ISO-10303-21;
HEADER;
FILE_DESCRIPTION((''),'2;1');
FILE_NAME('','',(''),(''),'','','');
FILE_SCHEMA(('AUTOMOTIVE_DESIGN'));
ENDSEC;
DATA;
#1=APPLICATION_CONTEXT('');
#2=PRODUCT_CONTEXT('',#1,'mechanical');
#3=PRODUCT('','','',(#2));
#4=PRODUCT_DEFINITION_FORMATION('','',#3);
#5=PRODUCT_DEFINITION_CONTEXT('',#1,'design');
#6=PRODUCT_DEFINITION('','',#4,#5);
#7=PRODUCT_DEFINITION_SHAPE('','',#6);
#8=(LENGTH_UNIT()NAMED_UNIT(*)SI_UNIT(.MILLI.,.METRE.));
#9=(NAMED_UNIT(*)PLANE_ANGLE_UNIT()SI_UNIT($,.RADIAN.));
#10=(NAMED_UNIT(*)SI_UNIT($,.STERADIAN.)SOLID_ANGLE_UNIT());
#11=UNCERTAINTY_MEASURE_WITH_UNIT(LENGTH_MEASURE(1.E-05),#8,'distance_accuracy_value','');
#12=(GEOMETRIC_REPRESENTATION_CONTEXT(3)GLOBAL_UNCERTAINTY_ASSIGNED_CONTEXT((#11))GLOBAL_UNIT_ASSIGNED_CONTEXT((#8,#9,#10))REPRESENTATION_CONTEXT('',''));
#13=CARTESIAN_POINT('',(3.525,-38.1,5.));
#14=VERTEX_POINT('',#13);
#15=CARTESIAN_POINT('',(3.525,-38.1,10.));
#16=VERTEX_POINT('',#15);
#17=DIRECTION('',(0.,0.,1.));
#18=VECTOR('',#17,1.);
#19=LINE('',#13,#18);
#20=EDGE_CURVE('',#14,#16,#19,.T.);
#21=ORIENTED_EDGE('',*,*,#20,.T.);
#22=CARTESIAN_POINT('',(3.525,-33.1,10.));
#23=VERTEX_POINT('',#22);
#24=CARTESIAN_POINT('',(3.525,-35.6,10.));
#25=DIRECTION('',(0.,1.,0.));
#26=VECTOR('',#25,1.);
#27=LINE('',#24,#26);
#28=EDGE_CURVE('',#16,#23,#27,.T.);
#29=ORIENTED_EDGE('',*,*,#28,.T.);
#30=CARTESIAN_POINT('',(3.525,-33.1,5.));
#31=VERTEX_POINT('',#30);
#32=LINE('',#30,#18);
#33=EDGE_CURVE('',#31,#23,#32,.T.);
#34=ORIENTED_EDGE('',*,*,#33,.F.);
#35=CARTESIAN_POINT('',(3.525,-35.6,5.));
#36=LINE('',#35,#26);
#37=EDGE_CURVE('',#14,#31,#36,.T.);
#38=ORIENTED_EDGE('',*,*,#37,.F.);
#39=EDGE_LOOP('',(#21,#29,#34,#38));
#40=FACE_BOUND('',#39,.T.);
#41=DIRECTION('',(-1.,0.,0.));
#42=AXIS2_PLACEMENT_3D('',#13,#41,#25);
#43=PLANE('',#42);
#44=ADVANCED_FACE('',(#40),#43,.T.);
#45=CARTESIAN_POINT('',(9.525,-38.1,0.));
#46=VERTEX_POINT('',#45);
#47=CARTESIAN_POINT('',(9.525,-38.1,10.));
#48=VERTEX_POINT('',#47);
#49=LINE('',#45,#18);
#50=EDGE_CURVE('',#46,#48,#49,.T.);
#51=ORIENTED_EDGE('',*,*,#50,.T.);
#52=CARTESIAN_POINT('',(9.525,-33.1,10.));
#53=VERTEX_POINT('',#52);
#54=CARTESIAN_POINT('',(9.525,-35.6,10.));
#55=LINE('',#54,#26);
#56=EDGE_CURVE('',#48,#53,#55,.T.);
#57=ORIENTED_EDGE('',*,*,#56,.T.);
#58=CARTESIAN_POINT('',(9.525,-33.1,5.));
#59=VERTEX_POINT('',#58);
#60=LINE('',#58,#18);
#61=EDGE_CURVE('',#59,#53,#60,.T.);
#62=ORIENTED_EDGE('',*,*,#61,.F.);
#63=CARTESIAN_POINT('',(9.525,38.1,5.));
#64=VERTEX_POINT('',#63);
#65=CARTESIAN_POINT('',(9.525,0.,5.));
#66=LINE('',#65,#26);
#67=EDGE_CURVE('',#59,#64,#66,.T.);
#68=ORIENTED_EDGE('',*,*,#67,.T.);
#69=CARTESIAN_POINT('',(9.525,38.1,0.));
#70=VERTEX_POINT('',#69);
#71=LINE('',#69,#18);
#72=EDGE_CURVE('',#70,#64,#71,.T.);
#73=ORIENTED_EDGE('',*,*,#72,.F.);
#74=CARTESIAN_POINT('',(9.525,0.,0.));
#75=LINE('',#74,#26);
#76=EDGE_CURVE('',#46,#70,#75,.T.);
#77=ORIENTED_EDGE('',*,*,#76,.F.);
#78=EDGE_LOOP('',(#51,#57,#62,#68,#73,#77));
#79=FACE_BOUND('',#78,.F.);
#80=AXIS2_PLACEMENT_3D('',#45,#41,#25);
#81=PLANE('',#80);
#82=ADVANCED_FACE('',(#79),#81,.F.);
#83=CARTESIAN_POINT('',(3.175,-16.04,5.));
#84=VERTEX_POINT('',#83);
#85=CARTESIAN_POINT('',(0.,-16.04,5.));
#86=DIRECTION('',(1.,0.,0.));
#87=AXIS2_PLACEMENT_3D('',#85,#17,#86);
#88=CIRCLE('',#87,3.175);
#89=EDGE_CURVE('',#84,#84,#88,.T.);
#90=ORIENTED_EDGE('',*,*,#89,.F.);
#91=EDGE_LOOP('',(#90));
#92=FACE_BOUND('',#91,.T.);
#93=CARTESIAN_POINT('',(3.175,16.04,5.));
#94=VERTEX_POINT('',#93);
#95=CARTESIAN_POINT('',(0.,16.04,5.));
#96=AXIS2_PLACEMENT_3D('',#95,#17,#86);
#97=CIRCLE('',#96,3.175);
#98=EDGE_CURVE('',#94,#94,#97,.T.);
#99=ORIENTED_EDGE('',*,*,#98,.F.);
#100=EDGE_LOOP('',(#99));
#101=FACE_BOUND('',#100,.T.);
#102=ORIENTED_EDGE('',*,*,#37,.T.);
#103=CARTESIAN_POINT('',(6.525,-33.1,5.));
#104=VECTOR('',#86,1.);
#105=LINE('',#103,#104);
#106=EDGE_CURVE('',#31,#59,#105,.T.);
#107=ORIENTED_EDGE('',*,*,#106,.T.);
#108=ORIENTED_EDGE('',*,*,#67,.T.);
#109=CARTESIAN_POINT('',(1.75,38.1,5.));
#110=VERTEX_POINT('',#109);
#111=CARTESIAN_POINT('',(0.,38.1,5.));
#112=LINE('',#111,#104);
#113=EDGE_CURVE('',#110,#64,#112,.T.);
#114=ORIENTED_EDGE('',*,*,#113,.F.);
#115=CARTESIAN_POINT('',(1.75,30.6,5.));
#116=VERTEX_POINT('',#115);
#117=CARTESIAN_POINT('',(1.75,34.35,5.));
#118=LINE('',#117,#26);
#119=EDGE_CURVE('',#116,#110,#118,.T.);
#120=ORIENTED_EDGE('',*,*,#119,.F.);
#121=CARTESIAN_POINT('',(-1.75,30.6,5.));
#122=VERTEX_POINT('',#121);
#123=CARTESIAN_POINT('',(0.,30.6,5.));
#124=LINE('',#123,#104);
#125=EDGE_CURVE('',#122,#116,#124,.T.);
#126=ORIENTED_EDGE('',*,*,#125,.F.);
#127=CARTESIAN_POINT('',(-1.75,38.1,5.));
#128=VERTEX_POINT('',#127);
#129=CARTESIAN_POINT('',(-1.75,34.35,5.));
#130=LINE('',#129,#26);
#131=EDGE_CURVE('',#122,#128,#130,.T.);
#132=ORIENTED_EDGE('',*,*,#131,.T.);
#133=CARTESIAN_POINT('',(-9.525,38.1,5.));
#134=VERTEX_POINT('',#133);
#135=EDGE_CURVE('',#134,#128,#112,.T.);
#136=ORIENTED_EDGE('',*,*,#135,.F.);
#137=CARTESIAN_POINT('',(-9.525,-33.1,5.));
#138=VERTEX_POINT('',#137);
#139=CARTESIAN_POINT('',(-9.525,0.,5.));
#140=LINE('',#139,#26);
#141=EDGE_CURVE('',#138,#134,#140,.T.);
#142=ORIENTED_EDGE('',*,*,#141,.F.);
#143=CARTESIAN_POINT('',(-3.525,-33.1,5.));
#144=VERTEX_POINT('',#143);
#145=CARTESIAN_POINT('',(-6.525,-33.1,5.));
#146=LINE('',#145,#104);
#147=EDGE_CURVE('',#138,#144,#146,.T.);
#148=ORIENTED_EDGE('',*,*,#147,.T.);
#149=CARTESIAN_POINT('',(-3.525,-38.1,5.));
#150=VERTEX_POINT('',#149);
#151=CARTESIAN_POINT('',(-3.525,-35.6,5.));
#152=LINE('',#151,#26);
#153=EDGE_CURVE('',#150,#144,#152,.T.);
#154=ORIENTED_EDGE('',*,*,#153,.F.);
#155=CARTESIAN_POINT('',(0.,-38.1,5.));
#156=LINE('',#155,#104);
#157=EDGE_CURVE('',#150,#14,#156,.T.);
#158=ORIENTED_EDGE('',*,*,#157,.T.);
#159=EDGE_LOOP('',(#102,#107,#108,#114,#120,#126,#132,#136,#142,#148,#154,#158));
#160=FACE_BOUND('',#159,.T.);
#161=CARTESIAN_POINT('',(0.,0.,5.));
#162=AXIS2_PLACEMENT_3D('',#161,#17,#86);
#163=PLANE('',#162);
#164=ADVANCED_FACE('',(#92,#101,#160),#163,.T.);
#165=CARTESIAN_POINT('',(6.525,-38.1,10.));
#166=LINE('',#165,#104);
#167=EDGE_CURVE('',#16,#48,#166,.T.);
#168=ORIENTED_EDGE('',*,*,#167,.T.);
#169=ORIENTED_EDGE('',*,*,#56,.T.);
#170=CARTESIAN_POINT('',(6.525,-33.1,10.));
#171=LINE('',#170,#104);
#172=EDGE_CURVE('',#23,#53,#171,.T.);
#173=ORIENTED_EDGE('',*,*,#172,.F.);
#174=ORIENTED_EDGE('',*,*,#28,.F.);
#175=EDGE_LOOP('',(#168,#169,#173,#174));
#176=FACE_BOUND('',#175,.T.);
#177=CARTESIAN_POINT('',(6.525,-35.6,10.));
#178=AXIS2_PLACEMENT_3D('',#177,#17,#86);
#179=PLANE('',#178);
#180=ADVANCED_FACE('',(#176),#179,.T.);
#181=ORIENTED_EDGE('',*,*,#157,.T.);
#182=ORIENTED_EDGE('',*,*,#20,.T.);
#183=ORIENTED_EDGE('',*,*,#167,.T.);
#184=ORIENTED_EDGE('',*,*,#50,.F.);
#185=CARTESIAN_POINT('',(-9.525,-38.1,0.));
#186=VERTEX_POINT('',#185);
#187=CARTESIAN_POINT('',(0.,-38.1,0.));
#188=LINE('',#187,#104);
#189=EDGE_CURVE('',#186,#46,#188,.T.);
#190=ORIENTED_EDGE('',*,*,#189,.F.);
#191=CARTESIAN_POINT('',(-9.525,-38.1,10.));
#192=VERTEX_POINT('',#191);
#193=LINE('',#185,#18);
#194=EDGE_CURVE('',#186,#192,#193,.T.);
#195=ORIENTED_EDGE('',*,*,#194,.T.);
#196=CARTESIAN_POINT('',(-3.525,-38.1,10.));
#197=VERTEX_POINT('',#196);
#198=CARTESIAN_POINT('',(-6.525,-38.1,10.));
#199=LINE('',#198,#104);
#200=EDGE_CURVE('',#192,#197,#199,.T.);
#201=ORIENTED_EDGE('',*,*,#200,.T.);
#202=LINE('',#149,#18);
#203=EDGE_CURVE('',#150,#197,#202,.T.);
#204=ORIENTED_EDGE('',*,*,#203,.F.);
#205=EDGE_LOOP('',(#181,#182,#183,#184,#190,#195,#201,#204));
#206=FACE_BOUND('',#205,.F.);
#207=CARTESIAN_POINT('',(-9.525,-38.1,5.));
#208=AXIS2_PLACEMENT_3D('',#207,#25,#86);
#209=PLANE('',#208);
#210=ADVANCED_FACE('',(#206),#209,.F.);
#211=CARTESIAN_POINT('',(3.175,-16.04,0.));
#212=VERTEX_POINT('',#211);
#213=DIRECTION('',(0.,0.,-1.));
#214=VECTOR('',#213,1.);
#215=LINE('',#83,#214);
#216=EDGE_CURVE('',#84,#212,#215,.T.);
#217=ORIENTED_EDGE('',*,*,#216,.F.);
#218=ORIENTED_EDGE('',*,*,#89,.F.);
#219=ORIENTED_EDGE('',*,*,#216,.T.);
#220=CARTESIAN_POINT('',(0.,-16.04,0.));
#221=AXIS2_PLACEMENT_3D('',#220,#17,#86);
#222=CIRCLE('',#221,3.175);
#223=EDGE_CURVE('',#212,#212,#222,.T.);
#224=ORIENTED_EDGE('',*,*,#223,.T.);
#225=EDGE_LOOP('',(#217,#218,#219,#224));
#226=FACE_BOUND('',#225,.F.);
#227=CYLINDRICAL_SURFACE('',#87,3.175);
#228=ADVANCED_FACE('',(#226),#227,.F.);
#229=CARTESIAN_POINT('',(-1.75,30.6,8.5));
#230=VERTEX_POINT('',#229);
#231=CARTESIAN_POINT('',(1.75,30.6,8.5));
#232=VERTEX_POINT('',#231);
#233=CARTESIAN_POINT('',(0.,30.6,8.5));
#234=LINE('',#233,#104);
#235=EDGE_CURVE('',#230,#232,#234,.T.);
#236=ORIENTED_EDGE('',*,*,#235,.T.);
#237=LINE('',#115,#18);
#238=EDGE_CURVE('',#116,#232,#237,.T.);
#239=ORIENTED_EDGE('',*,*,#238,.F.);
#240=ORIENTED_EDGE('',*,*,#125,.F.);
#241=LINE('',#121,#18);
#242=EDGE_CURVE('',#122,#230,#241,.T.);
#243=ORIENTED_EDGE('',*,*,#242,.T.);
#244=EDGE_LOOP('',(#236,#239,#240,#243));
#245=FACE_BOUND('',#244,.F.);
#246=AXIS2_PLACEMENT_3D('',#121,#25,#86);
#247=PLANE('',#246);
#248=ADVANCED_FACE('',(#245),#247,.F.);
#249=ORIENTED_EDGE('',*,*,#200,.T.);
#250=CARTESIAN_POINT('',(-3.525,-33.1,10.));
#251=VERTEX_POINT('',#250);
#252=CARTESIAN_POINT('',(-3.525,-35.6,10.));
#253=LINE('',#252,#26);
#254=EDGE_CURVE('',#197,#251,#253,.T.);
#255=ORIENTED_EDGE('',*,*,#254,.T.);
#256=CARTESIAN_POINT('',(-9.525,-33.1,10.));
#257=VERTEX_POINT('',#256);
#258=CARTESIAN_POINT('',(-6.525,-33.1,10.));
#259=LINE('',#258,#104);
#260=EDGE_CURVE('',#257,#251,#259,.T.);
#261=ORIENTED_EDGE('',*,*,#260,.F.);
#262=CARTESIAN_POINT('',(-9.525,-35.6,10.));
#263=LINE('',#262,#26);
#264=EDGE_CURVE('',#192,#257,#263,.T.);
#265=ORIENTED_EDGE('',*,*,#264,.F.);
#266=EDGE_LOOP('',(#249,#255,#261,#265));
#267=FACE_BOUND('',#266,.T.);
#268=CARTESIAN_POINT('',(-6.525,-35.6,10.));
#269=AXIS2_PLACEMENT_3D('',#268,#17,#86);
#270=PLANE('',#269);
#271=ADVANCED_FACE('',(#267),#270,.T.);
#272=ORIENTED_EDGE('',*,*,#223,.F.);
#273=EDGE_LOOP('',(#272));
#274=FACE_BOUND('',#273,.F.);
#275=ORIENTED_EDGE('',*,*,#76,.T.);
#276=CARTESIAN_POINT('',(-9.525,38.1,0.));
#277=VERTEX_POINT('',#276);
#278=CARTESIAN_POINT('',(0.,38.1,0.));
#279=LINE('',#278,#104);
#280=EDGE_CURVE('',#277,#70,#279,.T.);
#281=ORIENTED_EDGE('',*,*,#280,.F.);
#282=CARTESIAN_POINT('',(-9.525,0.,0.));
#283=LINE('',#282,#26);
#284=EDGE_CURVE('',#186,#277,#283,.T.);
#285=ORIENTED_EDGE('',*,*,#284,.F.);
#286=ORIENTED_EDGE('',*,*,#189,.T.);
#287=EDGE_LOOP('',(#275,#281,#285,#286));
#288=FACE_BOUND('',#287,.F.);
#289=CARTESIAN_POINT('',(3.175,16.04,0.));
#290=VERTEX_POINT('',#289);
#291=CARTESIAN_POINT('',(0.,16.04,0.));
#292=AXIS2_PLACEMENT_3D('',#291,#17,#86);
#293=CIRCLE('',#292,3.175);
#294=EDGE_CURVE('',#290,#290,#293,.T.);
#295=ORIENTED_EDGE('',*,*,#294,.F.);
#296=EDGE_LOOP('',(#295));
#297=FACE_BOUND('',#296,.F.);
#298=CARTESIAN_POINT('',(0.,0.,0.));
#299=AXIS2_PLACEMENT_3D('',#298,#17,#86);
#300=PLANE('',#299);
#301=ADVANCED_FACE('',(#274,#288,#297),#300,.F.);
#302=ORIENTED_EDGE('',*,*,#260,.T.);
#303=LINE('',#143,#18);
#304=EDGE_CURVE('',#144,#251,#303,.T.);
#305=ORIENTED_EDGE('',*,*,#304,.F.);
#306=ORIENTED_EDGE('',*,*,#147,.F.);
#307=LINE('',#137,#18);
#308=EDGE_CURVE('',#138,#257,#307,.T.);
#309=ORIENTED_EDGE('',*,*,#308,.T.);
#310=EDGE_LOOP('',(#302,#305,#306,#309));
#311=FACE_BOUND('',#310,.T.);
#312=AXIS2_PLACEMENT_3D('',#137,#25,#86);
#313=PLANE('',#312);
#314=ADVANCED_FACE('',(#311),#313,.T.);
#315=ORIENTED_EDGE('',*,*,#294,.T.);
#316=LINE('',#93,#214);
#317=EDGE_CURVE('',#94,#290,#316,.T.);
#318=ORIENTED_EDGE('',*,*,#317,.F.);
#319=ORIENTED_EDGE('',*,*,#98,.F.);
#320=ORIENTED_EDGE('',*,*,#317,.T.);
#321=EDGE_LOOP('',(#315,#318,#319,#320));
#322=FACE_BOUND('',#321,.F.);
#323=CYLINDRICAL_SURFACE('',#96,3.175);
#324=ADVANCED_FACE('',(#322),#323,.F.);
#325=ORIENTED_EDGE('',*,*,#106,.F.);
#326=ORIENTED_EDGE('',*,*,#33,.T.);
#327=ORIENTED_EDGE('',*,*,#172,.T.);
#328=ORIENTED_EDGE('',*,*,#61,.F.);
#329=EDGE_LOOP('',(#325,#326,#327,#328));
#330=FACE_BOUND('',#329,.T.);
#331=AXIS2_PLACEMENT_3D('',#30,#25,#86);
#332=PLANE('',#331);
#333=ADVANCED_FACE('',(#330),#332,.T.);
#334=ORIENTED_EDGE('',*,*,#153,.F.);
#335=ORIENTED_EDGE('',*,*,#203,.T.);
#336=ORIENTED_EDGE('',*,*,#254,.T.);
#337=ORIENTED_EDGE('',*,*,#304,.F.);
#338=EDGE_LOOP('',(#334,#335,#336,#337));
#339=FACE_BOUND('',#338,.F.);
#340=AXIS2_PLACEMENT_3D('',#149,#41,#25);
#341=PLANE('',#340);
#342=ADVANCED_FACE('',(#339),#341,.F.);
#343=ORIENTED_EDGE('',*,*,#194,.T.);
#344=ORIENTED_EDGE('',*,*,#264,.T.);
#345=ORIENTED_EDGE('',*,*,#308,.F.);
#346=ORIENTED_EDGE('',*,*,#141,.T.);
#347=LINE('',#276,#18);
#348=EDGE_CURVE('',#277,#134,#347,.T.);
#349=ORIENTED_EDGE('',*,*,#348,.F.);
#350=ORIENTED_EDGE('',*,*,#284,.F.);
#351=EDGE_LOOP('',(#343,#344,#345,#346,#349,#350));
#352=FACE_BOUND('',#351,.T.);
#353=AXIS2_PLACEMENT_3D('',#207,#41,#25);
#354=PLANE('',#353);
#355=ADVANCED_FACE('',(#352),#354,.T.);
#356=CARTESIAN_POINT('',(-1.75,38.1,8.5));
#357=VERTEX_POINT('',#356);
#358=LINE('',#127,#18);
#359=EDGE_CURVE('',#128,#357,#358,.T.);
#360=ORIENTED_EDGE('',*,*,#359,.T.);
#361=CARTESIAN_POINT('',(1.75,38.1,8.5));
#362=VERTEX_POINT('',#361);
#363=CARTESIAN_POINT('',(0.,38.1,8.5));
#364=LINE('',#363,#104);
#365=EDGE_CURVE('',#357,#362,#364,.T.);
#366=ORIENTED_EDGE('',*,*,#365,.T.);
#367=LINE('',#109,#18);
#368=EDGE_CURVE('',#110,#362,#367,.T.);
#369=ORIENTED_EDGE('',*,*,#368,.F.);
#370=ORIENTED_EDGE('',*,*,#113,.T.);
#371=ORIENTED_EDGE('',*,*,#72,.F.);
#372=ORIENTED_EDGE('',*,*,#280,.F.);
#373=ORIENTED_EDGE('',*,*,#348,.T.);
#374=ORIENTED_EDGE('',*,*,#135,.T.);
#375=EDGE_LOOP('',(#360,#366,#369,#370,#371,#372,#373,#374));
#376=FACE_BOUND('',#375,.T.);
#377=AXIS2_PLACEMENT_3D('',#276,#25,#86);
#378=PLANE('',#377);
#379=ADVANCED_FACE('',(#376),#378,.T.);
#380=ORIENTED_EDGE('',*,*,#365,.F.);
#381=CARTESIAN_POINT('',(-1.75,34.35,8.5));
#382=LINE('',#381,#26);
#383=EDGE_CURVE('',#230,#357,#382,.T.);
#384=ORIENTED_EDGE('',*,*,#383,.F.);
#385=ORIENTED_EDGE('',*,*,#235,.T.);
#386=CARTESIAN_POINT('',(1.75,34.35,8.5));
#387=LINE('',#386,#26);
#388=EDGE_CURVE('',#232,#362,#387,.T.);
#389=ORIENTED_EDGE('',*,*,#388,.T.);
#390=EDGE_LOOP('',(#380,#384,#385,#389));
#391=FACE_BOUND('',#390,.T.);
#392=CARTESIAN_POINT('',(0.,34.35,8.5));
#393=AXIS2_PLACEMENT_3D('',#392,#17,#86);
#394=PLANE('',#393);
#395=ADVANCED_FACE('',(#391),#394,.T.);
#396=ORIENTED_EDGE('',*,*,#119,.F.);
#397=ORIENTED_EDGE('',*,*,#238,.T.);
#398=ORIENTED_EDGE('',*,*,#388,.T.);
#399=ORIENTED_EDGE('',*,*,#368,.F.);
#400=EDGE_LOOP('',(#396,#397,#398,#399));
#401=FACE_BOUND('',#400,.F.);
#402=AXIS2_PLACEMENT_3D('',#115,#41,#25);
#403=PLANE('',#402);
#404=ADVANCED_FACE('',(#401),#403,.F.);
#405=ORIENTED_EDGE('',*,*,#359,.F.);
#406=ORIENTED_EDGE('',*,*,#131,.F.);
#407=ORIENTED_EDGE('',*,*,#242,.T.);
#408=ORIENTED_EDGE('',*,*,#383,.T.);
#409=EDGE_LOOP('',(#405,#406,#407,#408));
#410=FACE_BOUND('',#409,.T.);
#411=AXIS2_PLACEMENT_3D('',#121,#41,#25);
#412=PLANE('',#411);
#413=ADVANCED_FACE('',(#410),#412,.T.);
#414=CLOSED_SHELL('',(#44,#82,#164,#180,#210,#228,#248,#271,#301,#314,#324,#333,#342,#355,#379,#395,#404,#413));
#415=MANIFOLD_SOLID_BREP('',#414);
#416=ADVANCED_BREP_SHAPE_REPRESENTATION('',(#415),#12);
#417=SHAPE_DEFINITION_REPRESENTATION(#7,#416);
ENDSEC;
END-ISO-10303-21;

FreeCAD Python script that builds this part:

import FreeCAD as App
import Part
import Sketcher

V = App.Vector
Q = App.Units.Quantity


def add_polygon(sketch, points):
    """Adds a closed chain of lines whose ends are joined by coincident constraints."""
    first, n = sketch.GeometryCount, len(points)
    for a, b in zip(points, points[1:] + points[:1]):
        sketch.addGeometry(Part.LineSegment(App.Vector(*a, 0), App.Vector(*b, 0)), False)
    for i in range(n):
        sketch.addConstraint(Sketcher.Constraint("Coincident", first + i, 2, first + (i + 1) % n, 1))

doc = App.newDocument("Part")
body = doc.addObject("PartDesign::Body", "Body")

# Sketch on XY plane
sketch1 = body.newObject("Sketcher::SketchObject", "Sketch")
sketch1.AttachmentSupport = (doc.getObject("XY_Plane"), [""])
sketch1.MapMode = "FlatFace"
add_polygon(sketch1, [(-9.525, 38.1), (-9.525, -38.1), (9.525, -38.1), (9.525, 38.1)])  # lines 0-3
sketch1.addConstraint(Sketcher.Constraint("Vertical", 0))
sketch1.addConstraint(Sketcher.Constraint("Horizontal", 1))
sketch1.addConstraint(Sketcher.Constraint("Vertical", 2))
sketch1.addConstraint(Sketcher.Constraint("Horizontal", 3))
sketch1.addConstraint(Sketcher.Constraint("Symmetric", 0, 2, 2, 2, -1, 1))
sketch1.addConstraint(Sketcher.Constraint("DistanceY", 0, 2, 0, 1, Q("76.2 mm")))
sketch1.addConstraint(Sketcher.Constraint("DistanceX", 1, 1, 1, 2, Q("19.05 mm")))
pad1 = body.newObject("PartDesign::Pad", "Pad")
pad1.Profile = sketch1
pad1.Length = 5

# Sketch on XY plane
sketch2 = body.newObject("Sketcher::SketchObject", "Sketch001")
sketch2.AttachmentSupport = (doc.getObject("XY_Plane"), [""])
sketch2.MapMode = "FlatFace"
sketch2.AttachmentOffset = App.Placement(V(0, 0, 5), App.Rotation())
add_polygon(sketch2, [(-1.75, 38.1), (-1.75, 30.6), (1.75, 30.6), (1.75, 38.1)])  # lines 0-3
add_polygon(sketch2, [(-9.525, -33.1), (-9.525, -38.1), (-3.525, -38.1), (-3.525, -33.1)])  # lines 4-7
add_polygon(sketch2, [(3.525, -33.1), (3.525, -38.1), (9.525, -38.1), (9.525, -33.1)])  # lines 8-11
sketch2.addConstraint(Sketcher.Constraint("Vertical", 0))
sketch2.addConstraint(Sketcher.Constraint("Horizontal", 1))
sketch2.addConstraint(Sketcher.Constraint("Vertical", 2))
sketch2.addConstraint(Sketcher.Constraint("Horizontal", 3))
sketch2.addConstraint(Sketcher.Constraint("Vertical", 4))
sketch2.addConstraint(Sketcher.Constraint("Horizontal", 5))
sketch2.addConstraint(Sketcher.Constraint("Vertical", 6))
sketch2.addConstraint(Sketcher.Constraint("Horizontal", 7))
sketch2.addConstraint(Sketcher.Constraint("Vertical", 8))
sketch2.addConstraint(Sketcher.Constraint("Horizontal", 9))
sketch2.addConstraint(Sketcher.Constraint("Vertical", 10))
sketch2.addConstraint(Sketcher.Constraint("Horizontal", 11))
sketch2.addConstraint(Sketcher.Constraint("Symmetric", 5, 2, 8, 2, -2))
sketch2.addConstraint(Sketcher.Constraint("Symmetric", 7, 2, 10, 2, -2))
sketch2.addConstraint(Sketcher.Constraint("DistanceX", 5, 1, 5, 2, Q("6 mm")))
sketch2.addConstraint(Sketcher.Constraint("DistanceY", 4, 2, 4, 1, Q("5 mm")))
sketch2.addConstraint(Sketcher.Constraint("DistanceX", 1, 1, 1, 2, Q("3.5 mm")))
sketch2.addConstraint(Sketcher.Constraint("DistanceY", 0, 2, 0, 1, Q("7.5 mm")))
sketch2.addConstraint(Sketcher.Constraint("DistanceY", -1, 1, 0, 2, Q("30.6 mm")))
sketch2.addConstraint(Sketcher.Constraint("DistanceY", 4, 2, -1, 1, Q("38.1 mm")))
sketch2.addConstraint(Sketcher.Constraint("DistanceX", 0, 2, -1, 1, Q("1.75 mm")))
sketch2.addConstraint(Sketcher.Constraint("DistanceX", 5, 2, 8, 2, Q("7.05 mm")))
pad2 = body.newObject("PartDesign::Pad", "Pad001")
pad2.Profile = sketch2
pad2.Length = 5

# Sketch on XY plane
sketch3 = body.newObject("Sketcher::SketchObject", "Sketch002")
sketch3.AttachmentSupport = (doc.getObject("XY_Plane"), [""])
sketch3.MapMode = "FlatFace"
sketch3.AttachmentOffset = App.Placement(V(0, 0, 5), App.Rotation())
sketch3.addGeometry(Part.Circle(V(0, 16.04, 0), V(0, 0, 1), 3.175), False)
sketch3.addGeometry(Part.Circle(V(0, -16.04, 0), V(0, 0, 1), 3.175), False)
sketch3.addConstraint(Sketcher.Constraint("Equal", 0, 1))
sketch3.addConstraint(Sketcher.Constraint("Symmetric", 0, 3, 1, 3, -1, 1))
sketch3.addConstraint(Sketcher.Constraint("PointOnObject", 0, 3, -2))
sketch3.addConstraint(Sketcher.Constraint("Diameter", 0, Q("6.35 mm")))
sketch3.addConstraint(Sketcher.Constraint("DistanceY", -1, 1, 0, 3, Q("16.04 mm")))
pocket1 = body.newObject("PartDesign::Pocket", "Pocket")
pocket1.Profile = sketch3
pocket1.Length = 5

# Sketch on XY plane
sketch4 = body.newObject("Sketcher::SketchObject", "Sketch003")
sketch4.AttachmentSupport = (doc.getObject("XY_Plane"), [""])
sketch4.MapMode = "FlatFace"
sketch4.AttachmentOffset = App.Placement(V(0, 0, 10), App.Rotation())
add_polygon(sketch4, [(-1.75, 38.1), (-1.75, 30.6), (1.75, 30.6), (1.75, 38.1)])  # lines 0-3
sketch4.addConstraint(Sketcher.Constraint("Vertical", 0))
sketch4.addConstraint(Sketcher.Constraint("Horizontal", 1))
sketch4.addConstraint(Sketcher.Constraint("Vertical", 2))
sketch4.addConstraint(Sketcher.Constraint("Horizontal", 3))
sketch4.addConstraint(Sketcher.Constraint("DistanceX", 1, 1, 1, 2, Q("3.5 mm")))
sketch4.addConstraint(Sketcher.Constraint("DistanceY", 0, 2, 0, 1, Q("7.5 mm")))
sketch4.addConstraint(Sketcher.Constraint("DistanceY", -1, 1, 0, 2, Q("30.6 mm")))
sketch4.addConstraint(Sketcher.Constraint("DistanceX", 0, 2, -1, 1, Q("1.75 mm")))
pocket2 = body.newObject("PartDesign::Pocket", "Pocket001")
pocket2.Profile = sketch4
pocket2.Length = 1.5

doc.recompute()
